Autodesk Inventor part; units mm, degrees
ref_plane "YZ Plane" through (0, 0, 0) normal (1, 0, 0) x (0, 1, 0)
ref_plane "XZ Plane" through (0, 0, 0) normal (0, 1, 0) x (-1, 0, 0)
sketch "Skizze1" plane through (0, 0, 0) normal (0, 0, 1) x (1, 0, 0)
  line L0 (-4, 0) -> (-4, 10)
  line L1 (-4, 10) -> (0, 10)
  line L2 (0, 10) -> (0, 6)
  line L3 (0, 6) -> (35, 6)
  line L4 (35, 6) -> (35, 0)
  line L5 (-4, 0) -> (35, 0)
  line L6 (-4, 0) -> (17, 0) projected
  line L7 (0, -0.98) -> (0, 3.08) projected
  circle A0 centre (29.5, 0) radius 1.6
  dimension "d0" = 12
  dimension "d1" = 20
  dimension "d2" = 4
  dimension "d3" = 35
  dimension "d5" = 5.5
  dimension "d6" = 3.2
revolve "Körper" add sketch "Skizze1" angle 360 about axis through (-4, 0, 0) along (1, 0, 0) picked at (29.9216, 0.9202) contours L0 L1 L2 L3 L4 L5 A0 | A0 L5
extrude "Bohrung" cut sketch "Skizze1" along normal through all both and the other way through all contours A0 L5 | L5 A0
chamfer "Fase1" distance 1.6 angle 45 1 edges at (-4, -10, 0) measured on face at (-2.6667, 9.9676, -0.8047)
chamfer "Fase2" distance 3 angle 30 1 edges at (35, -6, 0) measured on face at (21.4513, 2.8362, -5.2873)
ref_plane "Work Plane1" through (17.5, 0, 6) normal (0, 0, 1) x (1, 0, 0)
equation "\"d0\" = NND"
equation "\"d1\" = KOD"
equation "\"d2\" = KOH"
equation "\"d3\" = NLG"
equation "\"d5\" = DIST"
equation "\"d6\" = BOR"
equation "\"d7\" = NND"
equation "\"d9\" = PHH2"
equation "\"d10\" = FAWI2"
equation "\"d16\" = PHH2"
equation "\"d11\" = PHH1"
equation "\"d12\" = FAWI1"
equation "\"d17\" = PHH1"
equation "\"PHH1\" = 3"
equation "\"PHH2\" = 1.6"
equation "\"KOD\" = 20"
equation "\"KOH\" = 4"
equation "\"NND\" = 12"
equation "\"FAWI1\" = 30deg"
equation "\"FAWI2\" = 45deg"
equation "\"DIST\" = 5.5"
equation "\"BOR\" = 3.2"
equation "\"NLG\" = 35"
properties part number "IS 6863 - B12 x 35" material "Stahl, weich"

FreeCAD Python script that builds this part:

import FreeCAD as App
import Part
import Sketcher

V = App.Vector
Q = App.Units.Quantity


def edges_at(feature, points):
    """Names of the edges that pass closest to the given points."""
    edges = feature.Shape.Edges
    near = lambda p: min(range(len(edges)), key=lambda i: edges[i].distToShape(Part.Vertex(*p))[0])
    return sorted({f"Edge{near(p) + 1}" for p in points})


def add_polygon(sketch, points):
    """Adds a closed chain of lines whose ends are joined by coincident constraints."""
    first, n = sketch.GeometryCount, len(points)
    for a, b in zip(points, points[1:] + points[:1]):
        sketch.addGeometry(Part.LineSegment(App.Vector(*a, 0), App.Vector(*b, 0)), False)
    for i in range(n):
        sketch.addConstraint(Sketcher.Constraint("Coincident", first + i, 2, first + (i + 1) % n, 1))

doc = App.newDocument("Part")
body = doc.addObject("PartDesign::Body", "Body")

# Sketch on XY plane
sketch1 = body.newObject("Sketcher::SketchObject", "Sketch")
sketch1.AttachmentSupport = (doc.getObject("XY_Plane"), [""])
sketch1.MapMode = "FlatFace"
add_polygon(sketch1, [(-4, 10), (-4, 0), (35, 0), (35, 6), (0, 6), (0, 10)])  # lines 0-5
sketch1.addConstraint([
    Sketcher.Constraint("Vertical", 0),
    Sketcher.Constraint("Horizontal", 1),
    Sketcher.Constraint("Vertical", 2),
    Sketcher.Constraint("Horizontal", 3),
    Sketcher.Constraint("Vertical", 4),
    Sketcher.Constraint("Horizontal", 5),
    Sketcher.Constraint("PointOnObject", 0, 2, -1),
    Sketcher.Constraint("PointOnObject", 3, 2, -2),
    Sketcher.Constraint("Equal", 5, 4),
    Sketcher.Constraint("DistanceX", 3, 2, 3, 1, Q("35 mm")),
    Sketcher.Constraint("DistanceX", 5, 2, 5, 1, Q("4 mm")),
    Sketcher.Constraint("DistanceY", 0, 2, 0, 1, Q("10 mm")),
])
revolution = body.newObject("PartDesign::Revolution", "Revolution")
revolution.Profile = sketch1
revolution.ReferenceAxis = (sketch1, ["H_Axis"])
revolution.Angle = 360

# Sketch on XY plane
sketch2 = body.newObject("Sketcher::SketchObject", "Sketch001")
sketch2.AttachmentSupport = (doc.getObject("XY_Plane"), [""])
sketch2.MapMode = "FlatFace"
sketch2.addGeometry(Part.Circle(V(29.5, 0, 0), V(0, 0, 1), 1.6), False)
sketch2.addConstraint([
    Sketcher.Constraint("PointOnObject", 0, 3, -1),
    Sketcher.Constraint("Diameter", 0, Q("3.2 mm")),
    Sketcher.Constraint("DistanceX", -1, 1, 0, 3, Q("29.5 mm")),
])
pocket1 = body.newObject("PartDesign::Pocket", "Pocket")
pocket1.Profile = sketch2
pocket1.Type = "ThroughAll"
pocket1.Midplane = True
doc.recompute()

chamfer = body.newObject("PartDesign::Chamfer", "Chamfer")
chamfer.Base = (pocket1, edges_at(pocket1, [(-4, -10, 0)]))
chamfer.Size = 1.6
doc.recompute()

chamfer2 = body.newObject("PartDesign::Chamfer", "Chamfer001")
chamfer2.Base = (chamfer, edges_at(chamfer, [(35, -6, 0)]))
chamfer2.ChamferType = "Distance and Angle"
chamfer2.Size = 3
chamfer2.Angle = 30

doc.recompute()
